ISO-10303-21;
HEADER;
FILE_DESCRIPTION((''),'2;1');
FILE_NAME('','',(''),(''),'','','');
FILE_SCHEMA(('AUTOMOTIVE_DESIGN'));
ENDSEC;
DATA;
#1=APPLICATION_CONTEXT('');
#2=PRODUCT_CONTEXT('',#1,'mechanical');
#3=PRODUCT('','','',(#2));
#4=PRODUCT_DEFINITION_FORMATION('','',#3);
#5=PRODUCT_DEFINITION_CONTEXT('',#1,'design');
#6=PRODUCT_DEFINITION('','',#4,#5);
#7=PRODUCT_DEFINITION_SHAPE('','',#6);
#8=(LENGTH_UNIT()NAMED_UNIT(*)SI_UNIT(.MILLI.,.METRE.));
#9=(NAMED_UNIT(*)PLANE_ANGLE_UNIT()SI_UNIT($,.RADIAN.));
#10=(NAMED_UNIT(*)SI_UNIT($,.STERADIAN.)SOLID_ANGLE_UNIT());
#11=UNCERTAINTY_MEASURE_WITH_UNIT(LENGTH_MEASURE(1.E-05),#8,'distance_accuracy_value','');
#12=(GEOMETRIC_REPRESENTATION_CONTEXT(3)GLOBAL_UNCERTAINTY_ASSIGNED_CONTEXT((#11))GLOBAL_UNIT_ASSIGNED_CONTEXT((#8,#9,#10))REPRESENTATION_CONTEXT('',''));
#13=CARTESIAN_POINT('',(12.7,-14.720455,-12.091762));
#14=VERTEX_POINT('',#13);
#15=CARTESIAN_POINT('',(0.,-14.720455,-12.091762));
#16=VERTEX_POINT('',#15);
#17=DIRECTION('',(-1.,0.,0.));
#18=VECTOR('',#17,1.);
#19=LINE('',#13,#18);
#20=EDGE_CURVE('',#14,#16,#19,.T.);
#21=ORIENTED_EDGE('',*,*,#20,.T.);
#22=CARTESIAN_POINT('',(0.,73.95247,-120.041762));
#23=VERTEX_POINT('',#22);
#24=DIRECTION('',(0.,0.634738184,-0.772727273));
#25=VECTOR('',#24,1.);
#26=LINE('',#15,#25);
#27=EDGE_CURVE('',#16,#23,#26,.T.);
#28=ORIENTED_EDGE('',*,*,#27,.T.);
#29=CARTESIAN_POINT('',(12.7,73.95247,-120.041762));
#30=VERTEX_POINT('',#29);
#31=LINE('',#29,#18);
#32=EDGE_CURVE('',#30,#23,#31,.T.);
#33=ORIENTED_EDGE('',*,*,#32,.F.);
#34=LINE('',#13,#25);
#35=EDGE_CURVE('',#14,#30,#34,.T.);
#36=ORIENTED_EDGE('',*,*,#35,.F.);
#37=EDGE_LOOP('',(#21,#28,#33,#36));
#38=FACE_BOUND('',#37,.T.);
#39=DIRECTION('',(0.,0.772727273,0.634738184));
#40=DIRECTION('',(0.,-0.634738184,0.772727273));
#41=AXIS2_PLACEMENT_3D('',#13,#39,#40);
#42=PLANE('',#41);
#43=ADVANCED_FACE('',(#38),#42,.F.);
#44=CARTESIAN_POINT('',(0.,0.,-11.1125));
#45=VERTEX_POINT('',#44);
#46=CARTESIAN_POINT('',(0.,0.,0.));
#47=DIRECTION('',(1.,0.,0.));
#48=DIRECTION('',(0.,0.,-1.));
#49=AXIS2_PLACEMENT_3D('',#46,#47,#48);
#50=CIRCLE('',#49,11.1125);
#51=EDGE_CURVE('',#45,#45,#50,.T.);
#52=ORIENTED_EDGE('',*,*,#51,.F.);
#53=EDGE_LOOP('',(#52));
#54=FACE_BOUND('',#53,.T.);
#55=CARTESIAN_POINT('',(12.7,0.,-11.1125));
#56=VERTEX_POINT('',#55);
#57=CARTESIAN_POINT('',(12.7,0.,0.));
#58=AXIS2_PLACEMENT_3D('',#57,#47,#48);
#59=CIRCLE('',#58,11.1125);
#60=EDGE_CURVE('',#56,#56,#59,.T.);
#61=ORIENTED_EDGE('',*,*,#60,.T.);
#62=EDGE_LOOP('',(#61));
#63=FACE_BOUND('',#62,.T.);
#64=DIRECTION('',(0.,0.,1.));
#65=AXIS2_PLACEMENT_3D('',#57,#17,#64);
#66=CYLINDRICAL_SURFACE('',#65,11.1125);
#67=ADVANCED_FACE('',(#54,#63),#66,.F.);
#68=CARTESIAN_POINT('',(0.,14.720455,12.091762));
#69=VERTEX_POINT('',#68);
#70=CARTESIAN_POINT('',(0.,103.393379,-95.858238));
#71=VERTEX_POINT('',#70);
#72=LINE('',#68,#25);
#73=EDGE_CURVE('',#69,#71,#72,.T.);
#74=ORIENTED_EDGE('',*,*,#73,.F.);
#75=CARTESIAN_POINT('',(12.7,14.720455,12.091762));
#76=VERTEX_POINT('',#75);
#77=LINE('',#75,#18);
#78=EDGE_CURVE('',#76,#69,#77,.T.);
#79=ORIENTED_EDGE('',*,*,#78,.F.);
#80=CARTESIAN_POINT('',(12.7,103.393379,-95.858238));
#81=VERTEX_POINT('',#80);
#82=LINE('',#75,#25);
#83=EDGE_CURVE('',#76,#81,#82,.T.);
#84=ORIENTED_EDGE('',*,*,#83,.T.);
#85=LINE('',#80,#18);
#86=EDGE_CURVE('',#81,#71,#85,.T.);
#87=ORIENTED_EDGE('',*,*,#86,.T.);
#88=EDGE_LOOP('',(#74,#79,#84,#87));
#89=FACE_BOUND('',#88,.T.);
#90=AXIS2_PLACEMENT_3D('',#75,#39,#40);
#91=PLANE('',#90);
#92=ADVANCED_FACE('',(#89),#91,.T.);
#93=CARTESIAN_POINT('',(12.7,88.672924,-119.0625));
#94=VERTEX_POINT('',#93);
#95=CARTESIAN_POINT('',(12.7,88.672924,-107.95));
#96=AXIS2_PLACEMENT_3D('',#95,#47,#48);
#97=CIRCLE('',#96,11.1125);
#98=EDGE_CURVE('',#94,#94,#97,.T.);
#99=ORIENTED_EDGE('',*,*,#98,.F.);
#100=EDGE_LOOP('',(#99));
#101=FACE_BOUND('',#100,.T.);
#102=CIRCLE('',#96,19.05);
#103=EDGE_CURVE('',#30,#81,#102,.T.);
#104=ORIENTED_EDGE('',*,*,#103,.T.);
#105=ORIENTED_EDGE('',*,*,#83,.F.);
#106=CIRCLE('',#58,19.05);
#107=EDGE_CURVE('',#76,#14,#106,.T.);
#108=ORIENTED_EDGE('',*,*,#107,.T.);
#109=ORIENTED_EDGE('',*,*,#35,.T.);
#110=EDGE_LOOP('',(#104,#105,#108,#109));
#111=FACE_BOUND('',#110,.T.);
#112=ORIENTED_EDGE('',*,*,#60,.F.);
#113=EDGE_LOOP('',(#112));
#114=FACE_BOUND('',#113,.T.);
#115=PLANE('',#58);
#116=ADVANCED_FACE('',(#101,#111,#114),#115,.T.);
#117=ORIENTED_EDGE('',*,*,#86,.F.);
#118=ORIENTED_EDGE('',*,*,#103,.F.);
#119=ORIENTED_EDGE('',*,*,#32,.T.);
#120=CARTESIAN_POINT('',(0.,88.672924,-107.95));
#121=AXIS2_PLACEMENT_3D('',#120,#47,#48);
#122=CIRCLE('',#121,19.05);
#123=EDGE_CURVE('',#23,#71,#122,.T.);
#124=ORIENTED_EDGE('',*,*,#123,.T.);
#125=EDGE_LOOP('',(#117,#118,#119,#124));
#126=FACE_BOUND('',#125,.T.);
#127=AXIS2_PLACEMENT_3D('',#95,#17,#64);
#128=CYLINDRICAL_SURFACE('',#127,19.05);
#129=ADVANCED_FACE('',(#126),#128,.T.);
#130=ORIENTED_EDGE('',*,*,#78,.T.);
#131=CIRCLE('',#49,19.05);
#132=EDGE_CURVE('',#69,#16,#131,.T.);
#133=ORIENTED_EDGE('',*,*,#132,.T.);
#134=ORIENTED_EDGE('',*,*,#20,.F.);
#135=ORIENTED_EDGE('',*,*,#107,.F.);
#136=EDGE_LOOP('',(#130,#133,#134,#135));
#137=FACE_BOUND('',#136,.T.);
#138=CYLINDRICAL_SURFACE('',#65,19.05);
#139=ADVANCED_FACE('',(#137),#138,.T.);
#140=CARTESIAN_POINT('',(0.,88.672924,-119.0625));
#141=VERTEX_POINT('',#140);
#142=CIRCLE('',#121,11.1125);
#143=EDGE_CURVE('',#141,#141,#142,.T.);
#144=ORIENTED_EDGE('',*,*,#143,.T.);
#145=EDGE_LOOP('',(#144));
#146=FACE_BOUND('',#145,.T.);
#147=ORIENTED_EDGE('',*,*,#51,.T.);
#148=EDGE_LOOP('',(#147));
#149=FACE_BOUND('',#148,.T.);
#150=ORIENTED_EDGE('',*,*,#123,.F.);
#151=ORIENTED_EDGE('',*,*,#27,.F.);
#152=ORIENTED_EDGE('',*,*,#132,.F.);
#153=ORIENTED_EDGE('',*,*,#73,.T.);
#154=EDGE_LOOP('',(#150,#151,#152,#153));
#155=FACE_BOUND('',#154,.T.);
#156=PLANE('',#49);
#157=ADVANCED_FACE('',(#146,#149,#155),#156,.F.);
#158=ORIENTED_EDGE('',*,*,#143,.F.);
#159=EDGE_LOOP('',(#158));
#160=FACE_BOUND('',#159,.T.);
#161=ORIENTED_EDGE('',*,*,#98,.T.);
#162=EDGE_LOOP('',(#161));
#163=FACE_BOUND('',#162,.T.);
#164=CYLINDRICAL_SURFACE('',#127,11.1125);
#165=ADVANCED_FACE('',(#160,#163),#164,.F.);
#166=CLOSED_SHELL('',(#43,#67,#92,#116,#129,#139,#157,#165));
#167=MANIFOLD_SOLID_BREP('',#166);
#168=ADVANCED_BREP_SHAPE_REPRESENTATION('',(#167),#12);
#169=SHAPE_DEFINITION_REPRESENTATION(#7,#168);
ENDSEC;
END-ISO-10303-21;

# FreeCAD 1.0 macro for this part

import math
import FreeCAD as App
import Part
import Sketcher
Q = App.Units.Quantity

doc = App.newDocument("Part")
params = doc.addObject("Spreadsheet::Sheet", "Params")
for row, (alias, value) in enumerate([
    ("sketch1_radius", "0.75 in"),
    ("sketch1_radius2", "0.4375 in"),
    ("sketch1_length", "5.5 in"),
    ("pad1_length", "0.5 in"),
], start=1):
    params.set(f"A{row}", alias)
    params.set(f"B{row}", "=" + value)
    params.setAlias(f"B{row}", alias)

body = doc.addObject("PartDesign::Body", "Body")

sketch1 = doc.addObject("Sketcher::SketchObject", "Sketch")
body.addObject(sketch1)
sketch1.AttachmentSupport = (doc.YZ_Plane, [""])
sketch1.MapMode = "FlatFace"
sketch1.addGeometry(Part.ArcOfCircle(Part.Circle(App.Vector(88.672924, -107.95, 0), App.Vector(0, 0, 1), 19.05), math.radians(-129.400569), math.radians(39.400569)), False)
sketch1.addGeometry(Part.LineSegment(App.Vector(103.393379, -95.858238, 0), App.Vector(14.720455, 12.091762, 0)), False)
sketch1.addGeometry(Part.ArcOfCircle(Part.Circle(App.Vector(0, 0, 0), App.Vector(0, 0, 1), 19.05), math.radians(39.400569), math.radians(219.400569)), False)
sketch1.addGeometry(Part.LineSegment(App.Vector(-14.720455, -12.091762, 0), App.Vector(-12.326471, -15.006187, 0)), False)
sketch1.addGeometry(Part.LineSegment(App.Vector(-12.326471, -15.006187, 0), App.Vector(73.95247, -120.041762, 0)), False)
sketch1.addGeometry(Part.ArcOfCircle(Part.Circle(App.Vector(88.672924, -107.95, 0), App.Vector(0, 0, 1), 19.05), math.radians(-140.599431), math.radians(-129.400569)), False)
sketch1.addGeometry(Part.ArcOfCircle(Part.Circle(App.Vector(0, 0, 0), App.Vector(0, 0, 1), 11.1125), math.radians(-50.599431), math.radians(230.599431)), False)
sketch1.addGeometry(Part.ArcOfCircle(Part.Circle(App.Vector(0, 0, 0), App.Vector(0, 0, 1), 11.1125), math.radians(-90), math.radians(-50.599431)), False)
sketch1.addGeometry(Part.ArcOfCircle(Part.Circle(App.Vector(0, 0, 0), App.Vector(0, 0, 1), 11.1125), math.radians(-129.400569), math.radians(-90)), False)
sketch1.addGeometry(Part.ArcOfCircle(Part.Circle(App.Vector(88.672924, -107.95, 0), App.Vector(0, 0, 1), 11.1125), math.radians(-90), math.radians(129.400569)), False)
sketch1.addGeometry(Part.ArcOfCircle(Part.Circle(App.Vector(88.672924, -107.95, 0), App.Vector(0, 0, 1), 11.1125), math.radians(-129.400569), math.radians(-90)), False)
sketch1.addGeometry(Part.ArcOfCircle(Part.Circle(App.Vector(88.672924, -107.95, 0), App.Vector(0, 0, 1), 11.1125), math.radians(129.400569), math.radians(230.599431)), False)
sketch1.addConstraint(Sketcher.Constraint("Tangent", 0, 2, 1, 1))
sketch1.addConstraint(Sketcher.Constraint("Tangent", 1, 2, 2, 1))
sketch1.addConstraint(Sketcher.Constraint("Tangent", 2, 2, 3, 1))
sketch1.addConstraint(Sketcher.Constraint("Coincident", 3, 2, 4, 1))
sketch1.addConstraint(Sketcher.Constraint("Tangent", 4, 2, 5, 1))
sketch1.addConstraint(Sketcher.Constraint("Tangent", 5, 2, 0, 1))
sketch1.addConstraint(Sketcher.Constraint("Tangent", 6, 1, 7, 2))
sketch1.addConstraint(Sketcher.Constraint("Tangent", 7, 1, 8, 2))
sketch1.addConstraint(Sketcher.Constraint("Tangent", 8, 1, 6, 2))
sketch1.addConstraint(Sketcher.Constraint("Tangent", 9, 1, 10, 2))
sketch1.addConstraint(Sketcher.Constraint("Tangent", 10, 1, 11, 2))
sketch1.addConstraint(Sketcher.Constraint("Tangent", 11, 1, 9, 2))
sketch1.addConstraint(Sketcher.Constraint("Coincident", 2, 3, -1, 1))
sketch1.addConstraint(Sketcher.Constraint("Coincident", 6, 3, -1, 1))
sketch1.addConstraint(Sketcher.Constraint("Coincident", 9, 3, 0, 3))
sketch1.addConstraint(Sketcher.Constraint("Equal", 0, 2))
sketch1.addConstraint(Sketcher.Constraint("Equal", 2, 5))
sketch1.addConstraint(Sketcher.Constraint("Equal", 8, 9))
sketch1.addConstraint(Sketcher.Constraint("PointOnObject", 7, 1, -2))
sketch1.addConstraint(Sketcher.Constraint("Parallel", 1, 3))
sketch1.addConstraint(Sketcher.Constraint("Horizontal", 6, 1, 8, 1))
sketch1.addConstraint(Sketcher.Constraint("Vertical", 11, 3, 9, 1))
sketch1.addConstraint(Sketcher.Constraint("Vertical", 10, 1, 11, 1))
sketch1.addConstraint(Sketcher.Constraint("Radius", 0, Q("0.75 in")))
sketch1.addConstraint(Sketcher.Constraint("Radius", 6, Q("0.4375 in")))
sketch1.addConstraint(Sketcher.Constraint("Distance", 1, Q("5.5 in")))
sketch1.addConstraint(Sketcher.Constraint("DistanceY", 0, 3, -1, 1, Q("4.25 in")))
sketch1.addConstraint(Sketcher.Constraint("DistanceX", 3, 2, 6, 1, Q("19.379999 mm")))
sketch1.addConstraint(Sketcher.Constraint("Distance", 3, Q("3.771609 mm")))
sketch1.addConstraint(Sketcher.Constraint("DistanceX", -1, 1, 5, 2, Q("76.581162 mm")))
sketch1.addConstraint(Sketcher.Constraint("DistanceY", 10, 1, -1, 1, Q("116.536932 mm")))
sketch1.setExpression("Constraints[23]", "Params.sketch1_radius")
sketch1.setExpression("Constraints[24]", "Params.sketch1_radius2")
sketch1.setExpression("Constraints[25]", "Params.sketch1_length")
pad1 = doc.addObject("PartDesign::Pad", "Pad")
body.addObject(pad1)
pad1.Profile = sketch1
pad1.setExpression("Length", "Params.pad1_length")

doc.recompute()
